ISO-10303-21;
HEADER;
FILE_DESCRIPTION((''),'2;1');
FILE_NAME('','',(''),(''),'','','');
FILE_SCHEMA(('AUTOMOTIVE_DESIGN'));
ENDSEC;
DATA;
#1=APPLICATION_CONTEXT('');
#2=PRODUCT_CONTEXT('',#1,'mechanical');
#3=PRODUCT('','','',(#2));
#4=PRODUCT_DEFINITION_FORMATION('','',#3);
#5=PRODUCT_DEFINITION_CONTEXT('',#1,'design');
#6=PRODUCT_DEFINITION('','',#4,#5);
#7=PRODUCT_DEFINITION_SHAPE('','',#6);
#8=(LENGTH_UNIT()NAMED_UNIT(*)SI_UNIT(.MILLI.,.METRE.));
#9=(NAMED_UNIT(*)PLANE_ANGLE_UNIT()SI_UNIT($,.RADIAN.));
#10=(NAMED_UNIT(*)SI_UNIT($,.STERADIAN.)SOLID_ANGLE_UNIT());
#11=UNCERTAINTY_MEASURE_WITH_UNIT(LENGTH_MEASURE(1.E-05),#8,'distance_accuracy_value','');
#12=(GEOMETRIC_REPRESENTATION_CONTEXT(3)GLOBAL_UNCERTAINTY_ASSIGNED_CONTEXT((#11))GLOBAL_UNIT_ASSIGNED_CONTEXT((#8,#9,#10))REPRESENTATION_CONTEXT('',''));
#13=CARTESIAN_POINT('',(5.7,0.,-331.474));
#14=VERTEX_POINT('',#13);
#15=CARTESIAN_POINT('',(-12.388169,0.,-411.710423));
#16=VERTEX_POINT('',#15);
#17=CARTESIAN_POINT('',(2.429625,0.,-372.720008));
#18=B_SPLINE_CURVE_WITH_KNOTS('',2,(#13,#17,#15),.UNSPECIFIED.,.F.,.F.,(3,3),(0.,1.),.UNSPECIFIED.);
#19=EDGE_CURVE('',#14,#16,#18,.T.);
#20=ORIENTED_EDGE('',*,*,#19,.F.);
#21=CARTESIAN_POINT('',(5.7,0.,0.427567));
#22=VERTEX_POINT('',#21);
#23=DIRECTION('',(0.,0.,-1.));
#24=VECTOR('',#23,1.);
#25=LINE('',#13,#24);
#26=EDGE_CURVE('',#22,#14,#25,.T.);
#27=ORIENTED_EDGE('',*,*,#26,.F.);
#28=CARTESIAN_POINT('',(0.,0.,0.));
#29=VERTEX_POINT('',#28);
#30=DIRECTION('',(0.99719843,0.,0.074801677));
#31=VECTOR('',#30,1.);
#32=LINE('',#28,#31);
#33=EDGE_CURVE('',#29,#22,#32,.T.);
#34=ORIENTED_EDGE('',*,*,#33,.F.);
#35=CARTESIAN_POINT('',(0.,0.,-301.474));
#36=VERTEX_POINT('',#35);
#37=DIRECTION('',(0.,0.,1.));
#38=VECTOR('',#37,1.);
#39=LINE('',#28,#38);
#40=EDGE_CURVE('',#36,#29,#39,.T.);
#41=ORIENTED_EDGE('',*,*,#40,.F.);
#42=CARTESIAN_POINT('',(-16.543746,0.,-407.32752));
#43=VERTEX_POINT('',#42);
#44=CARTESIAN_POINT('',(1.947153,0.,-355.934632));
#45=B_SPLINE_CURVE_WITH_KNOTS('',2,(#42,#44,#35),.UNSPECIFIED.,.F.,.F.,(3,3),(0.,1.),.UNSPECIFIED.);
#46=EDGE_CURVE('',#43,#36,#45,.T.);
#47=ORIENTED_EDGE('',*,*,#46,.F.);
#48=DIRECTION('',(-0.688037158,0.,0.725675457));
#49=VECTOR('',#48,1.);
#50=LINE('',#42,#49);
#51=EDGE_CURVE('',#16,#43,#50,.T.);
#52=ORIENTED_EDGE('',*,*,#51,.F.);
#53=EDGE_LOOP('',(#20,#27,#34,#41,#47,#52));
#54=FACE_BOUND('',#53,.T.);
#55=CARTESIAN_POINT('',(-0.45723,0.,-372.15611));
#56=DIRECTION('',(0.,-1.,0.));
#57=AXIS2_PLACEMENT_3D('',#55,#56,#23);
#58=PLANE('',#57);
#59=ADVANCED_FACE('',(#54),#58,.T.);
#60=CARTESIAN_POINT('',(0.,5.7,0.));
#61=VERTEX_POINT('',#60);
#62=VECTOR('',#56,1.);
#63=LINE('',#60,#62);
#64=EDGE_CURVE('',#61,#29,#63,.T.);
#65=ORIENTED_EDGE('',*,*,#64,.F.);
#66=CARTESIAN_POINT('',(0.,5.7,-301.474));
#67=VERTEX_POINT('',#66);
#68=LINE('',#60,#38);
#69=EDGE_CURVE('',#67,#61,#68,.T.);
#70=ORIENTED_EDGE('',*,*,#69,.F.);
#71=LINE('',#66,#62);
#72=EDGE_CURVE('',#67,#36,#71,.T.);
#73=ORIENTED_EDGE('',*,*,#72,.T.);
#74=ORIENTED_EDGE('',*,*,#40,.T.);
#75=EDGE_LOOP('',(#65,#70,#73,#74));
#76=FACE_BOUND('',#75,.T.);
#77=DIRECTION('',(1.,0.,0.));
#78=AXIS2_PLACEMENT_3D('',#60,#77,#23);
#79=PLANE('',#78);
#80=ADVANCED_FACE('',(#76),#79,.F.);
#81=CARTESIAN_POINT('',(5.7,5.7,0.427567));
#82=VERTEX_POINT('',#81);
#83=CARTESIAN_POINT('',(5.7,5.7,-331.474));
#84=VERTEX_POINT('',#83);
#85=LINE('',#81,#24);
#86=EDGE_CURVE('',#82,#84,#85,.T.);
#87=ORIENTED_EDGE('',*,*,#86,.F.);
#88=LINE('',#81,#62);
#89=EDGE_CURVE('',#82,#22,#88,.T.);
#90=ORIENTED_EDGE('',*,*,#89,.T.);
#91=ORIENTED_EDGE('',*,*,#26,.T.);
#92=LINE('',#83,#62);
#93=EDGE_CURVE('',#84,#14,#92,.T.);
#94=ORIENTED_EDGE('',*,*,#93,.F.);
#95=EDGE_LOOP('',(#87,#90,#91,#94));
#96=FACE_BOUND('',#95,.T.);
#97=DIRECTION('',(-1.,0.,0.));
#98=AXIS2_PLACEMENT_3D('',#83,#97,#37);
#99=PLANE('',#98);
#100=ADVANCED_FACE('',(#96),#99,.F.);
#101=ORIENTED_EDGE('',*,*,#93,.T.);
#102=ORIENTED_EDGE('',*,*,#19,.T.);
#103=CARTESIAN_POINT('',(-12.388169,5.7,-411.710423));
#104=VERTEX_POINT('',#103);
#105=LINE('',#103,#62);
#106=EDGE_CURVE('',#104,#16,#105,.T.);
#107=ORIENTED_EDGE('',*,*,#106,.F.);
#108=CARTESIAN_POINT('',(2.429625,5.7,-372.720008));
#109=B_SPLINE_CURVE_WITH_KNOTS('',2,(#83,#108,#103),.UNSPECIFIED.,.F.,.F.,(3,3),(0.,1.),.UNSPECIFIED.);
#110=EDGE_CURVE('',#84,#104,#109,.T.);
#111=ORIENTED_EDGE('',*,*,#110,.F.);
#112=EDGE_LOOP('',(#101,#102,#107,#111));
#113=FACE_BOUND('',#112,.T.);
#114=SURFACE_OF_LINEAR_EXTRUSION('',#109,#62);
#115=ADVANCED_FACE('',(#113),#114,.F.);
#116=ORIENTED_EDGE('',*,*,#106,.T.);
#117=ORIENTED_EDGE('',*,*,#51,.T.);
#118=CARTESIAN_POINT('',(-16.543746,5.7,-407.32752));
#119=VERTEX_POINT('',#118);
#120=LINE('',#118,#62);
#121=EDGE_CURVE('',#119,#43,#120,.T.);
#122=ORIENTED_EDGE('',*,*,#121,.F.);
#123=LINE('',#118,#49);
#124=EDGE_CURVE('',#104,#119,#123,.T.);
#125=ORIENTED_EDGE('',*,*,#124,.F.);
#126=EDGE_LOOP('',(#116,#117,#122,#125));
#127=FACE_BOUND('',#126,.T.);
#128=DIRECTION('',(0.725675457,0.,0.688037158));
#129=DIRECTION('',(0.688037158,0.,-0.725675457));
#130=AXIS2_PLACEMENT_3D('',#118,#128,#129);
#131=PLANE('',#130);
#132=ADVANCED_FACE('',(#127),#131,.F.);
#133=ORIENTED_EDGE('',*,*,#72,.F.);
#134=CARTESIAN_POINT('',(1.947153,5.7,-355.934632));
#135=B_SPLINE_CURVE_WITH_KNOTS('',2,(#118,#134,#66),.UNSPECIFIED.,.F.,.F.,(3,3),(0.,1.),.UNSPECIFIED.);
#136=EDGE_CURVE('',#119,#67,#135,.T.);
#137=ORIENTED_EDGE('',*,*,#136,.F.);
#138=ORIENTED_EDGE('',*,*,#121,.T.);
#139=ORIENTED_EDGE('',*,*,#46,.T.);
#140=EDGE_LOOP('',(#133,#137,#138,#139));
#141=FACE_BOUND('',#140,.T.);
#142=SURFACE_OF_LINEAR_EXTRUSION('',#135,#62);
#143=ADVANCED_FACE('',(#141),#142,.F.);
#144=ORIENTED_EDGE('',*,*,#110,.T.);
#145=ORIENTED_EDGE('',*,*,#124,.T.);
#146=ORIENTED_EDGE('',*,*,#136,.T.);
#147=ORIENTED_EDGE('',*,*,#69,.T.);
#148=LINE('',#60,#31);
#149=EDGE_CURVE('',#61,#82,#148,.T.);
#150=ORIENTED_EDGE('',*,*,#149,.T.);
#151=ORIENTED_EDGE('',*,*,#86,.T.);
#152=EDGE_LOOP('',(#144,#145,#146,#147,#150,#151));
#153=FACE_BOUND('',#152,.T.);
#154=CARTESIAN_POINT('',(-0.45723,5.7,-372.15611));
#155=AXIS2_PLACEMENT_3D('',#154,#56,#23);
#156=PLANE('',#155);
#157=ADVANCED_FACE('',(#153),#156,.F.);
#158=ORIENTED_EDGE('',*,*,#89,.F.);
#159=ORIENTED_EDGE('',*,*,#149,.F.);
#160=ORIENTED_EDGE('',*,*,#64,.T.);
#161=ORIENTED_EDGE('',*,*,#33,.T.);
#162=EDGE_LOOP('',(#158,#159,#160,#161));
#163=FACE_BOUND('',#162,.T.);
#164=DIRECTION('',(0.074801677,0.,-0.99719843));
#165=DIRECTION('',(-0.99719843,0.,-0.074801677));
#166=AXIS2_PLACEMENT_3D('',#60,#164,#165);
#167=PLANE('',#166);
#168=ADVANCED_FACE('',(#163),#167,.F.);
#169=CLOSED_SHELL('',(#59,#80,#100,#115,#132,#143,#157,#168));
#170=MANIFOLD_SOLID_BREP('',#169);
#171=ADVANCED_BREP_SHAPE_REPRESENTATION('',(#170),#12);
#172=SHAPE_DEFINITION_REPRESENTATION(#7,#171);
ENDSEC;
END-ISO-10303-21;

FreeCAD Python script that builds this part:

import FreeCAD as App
import Part
import Sketcher

V = App.Vector

doc = App.newDocument("Part")
body = doc.addObject("PartDesign::Body", "Body")

sketch1 = body.newObject("Sketcher::SketchObject", "Sketch")
sketch1.AttachmentSupport = (doc.getObject("XZ_Plane"), [""])
sketch1.MapMode = "FlatFace"
sketch1.addGeometry([
    Part.LineSegment(V(0, -301.474, 0), V(0, 0, 0)),
    Part.LineSegment(V(0, 0, 0), V(5.7, 0.427567, 0)),
    Part.LineSegment(V(5.7, 0.427567, 0), V(5.7, -331.474, 0)),
    Part.BSplineCurve([V(5.7, -331.474, 0), V(2.429625, -372.720008, 0), V(-12.388169, -411.710423, 0)], [3, 3], [0, 1], False, 2, [1, 1, 1], False),
    Part.LineSegment(V(-12.388169, -411.710423, 0), V(-16.543746, -407.32752, 0)),
    Part.BSplineCurve([V(0, -301.474, 0), V(1.947153, -355.934632, 0), V(-16.543746, -407.32752, 0)], [3, 3], [0, 1], False, 2, [1, 1, 1], False),
], False)
sketch1.addConstraint([
    Sketcher.Constraint("Block", 3),
    Sketcher.Constraint("Block", 5),
    Sketcher.Constraint("Coincident", 0, 2, 1, 1),
    Sketcher.Constraint("Coincident", 1, 2, 2, 1),
    Sketcher.Constraint("Coincident", 2, 2, 3, 1),
    Sketcher.Constraint("Coincident", 3, 2, 4, 1),
    Sketcher.Constraint("Coincident", 4, 2, 5, 2),
    Sketcher.Constraint("Coincident", 5, 1, 0, 1),
    Sketcher.Constraint("Vertical", 0),
    Sketcher.Constraint("Vertical", 2),
    Sketcher.Constraint("DistanceY", 0, 1, 0, 2, 301.474),
    Sketcher.Constraint("DistanceY", 2, 2, 2, 1, 331.901567),
])
pad1 = body.newObject("PartDesign::Pad", "Pad")
pad1.Profile = sketch1
pad1.Length = 5.7
pad1.Reversed = True

doc.recompute()
